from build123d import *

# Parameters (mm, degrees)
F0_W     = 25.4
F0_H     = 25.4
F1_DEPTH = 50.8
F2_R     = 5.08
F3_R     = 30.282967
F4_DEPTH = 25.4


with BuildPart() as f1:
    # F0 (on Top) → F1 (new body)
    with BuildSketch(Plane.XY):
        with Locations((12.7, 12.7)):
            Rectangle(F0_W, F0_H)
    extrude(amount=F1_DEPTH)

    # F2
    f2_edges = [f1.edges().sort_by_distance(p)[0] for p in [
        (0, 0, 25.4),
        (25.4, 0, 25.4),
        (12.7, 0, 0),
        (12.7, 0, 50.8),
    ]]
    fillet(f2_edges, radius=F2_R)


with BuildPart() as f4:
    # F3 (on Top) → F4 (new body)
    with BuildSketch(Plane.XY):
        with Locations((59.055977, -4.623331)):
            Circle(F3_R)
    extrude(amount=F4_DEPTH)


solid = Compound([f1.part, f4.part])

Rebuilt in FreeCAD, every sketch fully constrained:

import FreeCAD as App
import Part
import Sketcher
Q = App.Units.Quantity


def edges_at(feature, points):
    """Names of the edges that pass closest to the given points."""
    edges = feature.Shape.Edges
    near = lambda p: min(range(len(edges)), key=lambda i: edges[i].distToShape(Part.Vertex(*p))[0])
    return sorted({f"Edge{near(p) + 1}" for p in points})


def add_polygon(sketch, points):
    """Adds a closed chain of lines whose ends are joined by coincident constraints."""
    first, n = sketch.GeometryCount, len(points)
    for a, b in zip(points, points[1:] + points[:1]):
        sketch.addGeometry(Part.LineSegment(App.Vector(*a, 0), App.Vector(*b, 0)), False)
    for i in range(n):
        sketch.addConstraint(Sketcher.Constraint("Coincident", first + i, 2, first + (i + 1) % n, 1))

doc = App.newDocument("Part")
body = doc.addObject("PartDesign::Body", "Body")

# Sketch on XY plane
sketch1 = doc.addObject("Sketcher::SketchObject", "Sketch")
body.addObject(sketch1)
sketch1.AttachmentSupport = (doc.XY_Plane, [""])
sketch1.MapMode = "FlatFace"
add_polygon(sketch1, [(0, 25), (0, 0), (25, 0), (25, 25)])  # lines 0-3
sketch1.addConstraint([
    Sketcher.Constraint("Vertical", 0),
    Sketcher.Constraint("Horizontal", 1),
    Sketcher.Constraint("Vertical", 2),
    Sketcher.Constraint("Horizontal", 3),
    Sketcher.Constraint("Coincident", 0, 2, -1, 1),
    Sketcher.Constraint("Equal", 3, 0),
    Sketcher.Constraint("DistanceX", 1, 1, 1, 2, Q("1 in")),
])
pad1 = doc.addObject("PartDesign::Pad", "Pad")
body.addObject(pad1)
pad1.Profile = sketch1
pad1.Length = Q("2 in")
doc.recompute()

fillet = doc.addObject("PartDesign::Fillet", "Fillet")
body.addObject(fillet)
fillet.Base = (pad1, edges_at(pad1, [
    (0, 0, 25.4),
    (25.4, 0, 25.4),
    (12.7, 0, 0),
    (12.7, 0, 50.8),
]))
fillet.Radius = Q("0.2 in")
body2 = doc.addObject("PartDesign::Body", "Body001")

# Sketch on XY plane
sketch2 = doc.addObject("Sketcher::SketchObject", "Sketch001")
body2.addObject(sketch2)
sketch2.AttachmentSupport = (doc.getObject("XY_Plane001"), [""])
sketch2.MapMode = "FlatFace"
sketch2.addGeometry(Part.Circle(App.Vector(59, -5, 0), App.Vector(0, 0, 1), 30), False)
sketch2.addConstraint([
    Sketcher.Constraint("Diameter", 0, Q("60.565934 mm")),
    Sketcher.Constraint("DistanceY", 0, 3, -1, 1, Q("4.623331 mm")),
    Sketcher.Constraint("DistanceX", -1, 1, 0, 3, Q("59.055977 mm")),
])
pad2 = doc.addObject("PartDesign::Pad", "Pad001")
body2.addObject(pad2)
pad2.Profile = sketch2
pad2.Length = Q("1 in")

doc.recompute()
